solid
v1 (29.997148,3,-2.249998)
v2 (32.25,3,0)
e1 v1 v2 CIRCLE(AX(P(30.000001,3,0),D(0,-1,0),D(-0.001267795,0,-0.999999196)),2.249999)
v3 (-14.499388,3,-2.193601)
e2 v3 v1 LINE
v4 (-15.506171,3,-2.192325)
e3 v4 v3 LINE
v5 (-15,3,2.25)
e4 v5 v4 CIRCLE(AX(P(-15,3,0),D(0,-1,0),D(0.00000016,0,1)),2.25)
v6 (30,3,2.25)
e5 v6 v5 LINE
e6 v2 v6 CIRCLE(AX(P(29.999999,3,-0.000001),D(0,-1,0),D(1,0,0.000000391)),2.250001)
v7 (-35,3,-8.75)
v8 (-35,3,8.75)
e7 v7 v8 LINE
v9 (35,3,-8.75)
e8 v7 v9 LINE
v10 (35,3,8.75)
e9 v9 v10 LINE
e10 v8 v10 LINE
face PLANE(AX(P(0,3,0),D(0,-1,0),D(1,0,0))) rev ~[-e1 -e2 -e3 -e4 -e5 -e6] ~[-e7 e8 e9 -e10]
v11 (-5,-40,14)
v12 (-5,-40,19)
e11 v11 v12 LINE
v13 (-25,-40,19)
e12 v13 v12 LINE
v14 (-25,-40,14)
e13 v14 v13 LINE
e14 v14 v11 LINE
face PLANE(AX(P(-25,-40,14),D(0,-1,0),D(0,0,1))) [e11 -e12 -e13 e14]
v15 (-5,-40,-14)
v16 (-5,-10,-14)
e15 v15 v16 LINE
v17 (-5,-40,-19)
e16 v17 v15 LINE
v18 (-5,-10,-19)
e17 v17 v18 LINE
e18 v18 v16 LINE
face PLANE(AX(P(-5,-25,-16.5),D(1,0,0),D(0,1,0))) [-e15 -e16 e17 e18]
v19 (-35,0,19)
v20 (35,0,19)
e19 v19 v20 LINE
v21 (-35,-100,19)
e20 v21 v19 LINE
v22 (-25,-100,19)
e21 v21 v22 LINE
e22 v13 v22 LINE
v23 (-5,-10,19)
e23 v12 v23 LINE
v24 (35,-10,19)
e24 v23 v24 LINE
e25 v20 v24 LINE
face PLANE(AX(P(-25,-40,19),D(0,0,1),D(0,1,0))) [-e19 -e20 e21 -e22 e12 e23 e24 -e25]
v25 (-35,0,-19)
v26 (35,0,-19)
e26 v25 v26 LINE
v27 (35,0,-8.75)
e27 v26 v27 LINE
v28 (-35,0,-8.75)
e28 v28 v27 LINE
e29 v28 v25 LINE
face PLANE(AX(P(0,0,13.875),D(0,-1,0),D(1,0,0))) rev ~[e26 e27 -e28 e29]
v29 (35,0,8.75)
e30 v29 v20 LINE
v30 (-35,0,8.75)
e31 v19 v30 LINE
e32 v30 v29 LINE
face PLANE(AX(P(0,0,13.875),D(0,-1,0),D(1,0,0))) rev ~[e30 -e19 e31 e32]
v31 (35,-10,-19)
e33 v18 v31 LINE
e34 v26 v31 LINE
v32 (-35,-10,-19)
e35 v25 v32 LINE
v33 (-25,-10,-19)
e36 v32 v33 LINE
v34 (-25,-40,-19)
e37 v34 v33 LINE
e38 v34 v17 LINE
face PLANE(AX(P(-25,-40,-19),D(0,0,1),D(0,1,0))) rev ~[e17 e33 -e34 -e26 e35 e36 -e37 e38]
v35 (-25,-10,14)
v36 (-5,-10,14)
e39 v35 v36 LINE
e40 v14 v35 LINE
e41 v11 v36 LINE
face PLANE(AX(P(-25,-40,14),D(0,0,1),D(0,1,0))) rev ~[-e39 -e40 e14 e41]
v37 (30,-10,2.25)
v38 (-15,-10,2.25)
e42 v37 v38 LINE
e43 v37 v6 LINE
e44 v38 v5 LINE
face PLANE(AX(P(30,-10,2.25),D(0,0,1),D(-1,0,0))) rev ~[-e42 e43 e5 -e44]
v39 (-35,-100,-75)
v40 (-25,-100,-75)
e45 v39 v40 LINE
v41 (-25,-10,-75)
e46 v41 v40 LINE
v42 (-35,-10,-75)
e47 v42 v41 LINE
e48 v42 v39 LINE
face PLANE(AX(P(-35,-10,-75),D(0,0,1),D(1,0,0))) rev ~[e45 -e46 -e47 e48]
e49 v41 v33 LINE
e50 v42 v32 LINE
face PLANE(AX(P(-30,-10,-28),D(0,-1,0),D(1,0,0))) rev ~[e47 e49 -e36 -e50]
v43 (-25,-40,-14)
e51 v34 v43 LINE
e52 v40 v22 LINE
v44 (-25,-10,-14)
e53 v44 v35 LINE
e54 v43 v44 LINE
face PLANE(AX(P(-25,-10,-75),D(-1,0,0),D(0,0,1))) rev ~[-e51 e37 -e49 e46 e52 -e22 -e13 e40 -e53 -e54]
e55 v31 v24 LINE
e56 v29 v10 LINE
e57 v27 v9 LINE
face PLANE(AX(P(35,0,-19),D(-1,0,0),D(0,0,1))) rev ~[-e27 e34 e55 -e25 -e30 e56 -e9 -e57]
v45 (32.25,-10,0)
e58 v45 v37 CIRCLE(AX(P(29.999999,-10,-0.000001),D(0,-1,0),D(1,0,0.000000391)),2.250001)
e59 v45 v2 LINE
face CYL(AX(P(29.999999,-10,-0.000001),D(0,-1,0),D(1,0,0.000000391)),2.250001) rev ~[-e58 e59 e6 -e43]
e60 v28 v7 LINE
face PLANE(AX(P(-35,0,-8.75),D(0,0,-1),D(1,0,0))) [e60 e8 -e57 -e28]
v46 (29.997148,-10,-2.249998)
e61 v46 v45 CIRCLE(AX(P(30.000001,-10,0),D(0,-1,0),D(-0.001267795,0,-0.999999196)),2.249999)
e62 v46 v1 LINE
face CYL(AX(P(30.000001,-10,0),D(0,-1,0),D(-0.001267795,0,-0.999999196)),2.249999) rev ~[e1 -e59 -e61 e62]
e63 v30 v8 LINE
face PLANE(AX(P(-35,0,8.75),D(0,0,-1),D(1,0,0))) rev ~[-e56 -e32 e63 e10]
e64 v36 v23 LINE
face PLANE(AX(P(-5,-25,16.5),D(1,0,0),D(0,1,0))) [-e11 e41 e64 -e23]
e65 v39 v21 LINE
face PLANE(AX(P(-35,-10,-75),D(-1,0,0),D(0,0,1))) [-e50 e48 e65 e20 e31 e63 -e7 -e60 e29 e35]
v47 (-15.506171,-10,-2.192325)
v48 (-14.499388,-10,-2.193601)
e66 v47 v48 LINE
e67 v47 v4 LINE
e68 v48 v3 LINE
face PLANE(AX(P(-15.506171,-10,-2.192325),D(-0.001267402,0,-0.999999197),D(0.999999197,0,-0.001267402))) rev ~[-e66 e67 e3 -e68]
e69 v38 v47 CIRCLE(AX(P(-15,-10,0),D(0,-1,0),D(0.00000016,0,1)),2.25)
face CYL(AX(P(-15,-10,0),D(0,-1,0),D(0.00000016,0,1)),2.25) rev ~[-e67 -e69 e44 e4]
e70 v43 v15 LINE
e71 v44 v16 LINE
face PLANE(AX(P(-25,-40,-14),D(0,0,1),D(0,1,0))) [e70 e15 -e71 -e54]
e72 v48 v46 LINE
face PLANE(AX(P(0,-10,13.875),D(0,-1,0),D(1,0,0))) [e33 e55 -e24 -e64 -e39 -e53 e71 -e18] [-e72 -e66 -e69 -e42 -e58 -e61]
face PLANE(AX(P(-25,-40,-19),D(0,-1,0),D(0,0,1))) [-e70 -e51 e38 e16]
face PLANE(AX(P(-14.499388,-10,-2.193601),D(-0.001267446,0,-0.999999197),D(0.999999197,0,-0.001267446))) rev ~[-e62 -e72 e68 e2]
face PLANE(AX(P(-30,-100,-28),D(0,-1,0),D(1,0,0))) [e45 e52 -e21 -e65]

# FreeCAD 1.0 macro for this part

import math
import FreeCAD as App
import Part
import Sketcher


def add_polygon(sketch, points):
    """Adds a closed chain of lines whose ends are joined by coincident constraints."""
    first, n = sketch.GeometryCount, len(points)
    for a, b in zip(points, points[1:] + points[:1]):
        sketch.addGeometry(Part.LineSegment(App.Vector(*a, 0), App.Vector(*b, 0)), False)
    for i in range(n):
        sketch.addConstraint(Sketcher.Constraint("Coincident", first + i, 2, first + (i + 1) % n, 1))

doc = App.newDocument("Part")
body = doc.addObject("PartDesign::Body", "Body")

sketch1 = doc.addObject("Sketcher::SketchObject", "Sketch")
body.addObject(sketch1)
sketch1.AttachmentSupport = (doc.XZ_Plane, [""])
sketch1.MapMode = "FlatFace"
add_polygon(sketch1, [(-35, 19), (-35, -19), (35, -19), (35, 19)])
sketch1.addConstraint([
    Sketcher.Constraint("Vertical", 0),
    Sketcher.Constraint("Horizontal", 1),
    Sketcher.Constraint("Vertical", 2),
    Sketcher.Constraint("Horizontal", 3),
    Sketcher.Constraint("Symmetric", 0, 2, 2, 2, -1, 1),
    Sketcher.Constraint("DistanceX", 1, 1, 1, 2, 70.0),
    Sketcher.Constraint("DistanceY", 0, 2, 0, 1, 38.0),
])
pad1 = doc.addObject("PartDesign::Pad", "Pad")
body.addObject(pad1)
pad1.Profile = sketch1
pad1.Length = 10

sketch2 = doc.addObject("Sketcher::SketchObject", "Sketch001")
body.addObject(sketch2)
sketch2.AttachmentSupport = (doc.XZ_Plane, [""])
sketch2.MapMode = "FlatFace"
add_polygon(sketch2, [(-35, 8.75), (-35, -8.75), (35, -8.75), (35, 8.75)])
sketch2.addConstraint([
    Sketcher.Constraint("Vertical", 0),
    Sketcher.Constraint("Horizontal", 1),
    Sketcher.Constraint("Vertical", 2),
    Sketcher.Constraint("Horizontal", 3),
    Sketcher.Constraint("Symmetric", 0, 2, 2, 2, -1, 1),
    Sketcher.Constraint("DistanceX", 1, 1, 1, 2, 70.0),
    Sketcher.Constraint("DistanceY", 0, 2, 0, 1, 17.5),
])
pad2 = doc.addObject("PartDesign::Pad", "Pad001")
body.addObject(pad2)
pad2.Profile = sketch2
pad2.Length = 3
pad2.Reversed = True

sketch3 = doc.addObject("Sketcher::SketchObject", "Sketch002")
body.addObject(sketch3)
sketch3.AttachmentSupport = (doc.XZ_Plane, [""])
sketch3.MapMode = "FlatFace"
sketch3.AttachmentOffset = App.Placement(App.Vector(0, 0, 10), App.Rotation())
sketch3.addGeometry([
    Part.ArcOfCircle(Part.Circle(App.Vector(-15, 0, 0), App.Vector(0, 0, 1), 2.25), math.radians(89.999991), math.radians(256.999194)),
    Part.LineSegment(App.Vector(-15.506171, -2.192325, 0), App.Vector(-14.499388, -2.193601, 0)),
    Part.LineSegment(App.Vector(-14.499388, -2.193601, 0), App.Vector(29.997148, -2.249998, 0)),
    Part.ArcOfCircle(Part.Circle(App.Vector(30.000001, 0, 0), App.Vector(0, 0, 1), 2.249999), math.radians(-90.072639), math.radians(0.000009)),
    Part.ArcOfCircle(Part.Circle(App.Vector(29.999999, -0.000001, 0), App.Vector(0, 0, 1), 2.250001), math.radians(0.000022), math.radians(89.999978)),
    Part.LineSegment(App.Vector(30, 2.25, 0), App.Vector(-15, 2.25, 0)),
], False)
sketch3.addConstraint([
    Sketcher.Constraint("Coincident", 0, 2, 1, 1),
    Sketcher.Constraint("Coincident", 1, 2, 2, 1),
    Sketcher.Constraint("Tangent", 2, 2, 3, 1),
    Sketcher.Constraint("Tangent", 3, 2, 4, 1),
    Sketcher.Constraint("Tangent", 4, 2, 5, 1),
    Sketcher.Constraint("Tangent", 5, 2, 0, 1),
    Sketcher.Constraint("Horizontal", 5),
    Sketcher.Constraint("Equal", 0, 3),
    Sketcher.Constraint("Equal", 3, 4),
    Sketcher.Constraint("PointOnObject", 0, 3, -1),
    Sketcher.Constraint("PointOnObject", 3, 2, -1),
    Sketcher.Constraint("Parallel", 1, 2),
    Sketcher.Constraint("DistanceX", 5, 2, 5, 1, 45.0),
    Sketcher.Constraint("Radius", 0, 2.25),
    Sketcher.Constraint("DistanceX", 0, 3, -1, 1, 15.0),
    Sketcher.Constraint("DistanceY", 1, 2, -1, 1, 2.193601),
    Sketcher.Constraint("Distance", 2, 44.496572),
])
pocket1 = doc.addObject("PartDesign::Pocket", "Pocket")
body.addObject(pocket1)
pocket1.Profile = sketch3
pocket1.Length = 25

sketch4 = doc.addObject("Sketcher::SketchObject", "Sketch003")
body.addObject(sketch4)
sketch4.AttachmentSupport = (doc.XZ_Plane, [""])
sketch4.MapMode = "FlatFace"
sketch4.AttachmentOffset = App.Placement(App.Vector(0, 0, 10), App.Rotation())
add_polygon(sketch4, [(-35, 19), (-35, -75), (-25, -75), (-25, 19)])
sketch4.addConstraint([
    Sketcher.Constraint("Vertical", 0),
    Sketcher.Constraint("Horizontal", 1),
    Sketcher.Constraint("Vertical", 2),
    Sketcher.Constraint("Horizontal", 3),
    Sketcher.Constraint("DistanceX", 1, 1, 1, 2, 10.0),
    Sketcher.Constraint("DistanceY", 0, 2, 0, 1, 94.0),
    Sketcher.Constraint("DistanceX", 0, 2, -1, 1, 35.0),
    Sketcher.Constraint("DistanceY", 0, 2, -1, 1, 75.0),
])
pad3 = doc.addObject("PartDesign::Pad", "Pad002")
body.addObject(pad3)
pad3.Profile = sketch4
pad3.Length = 90

sketch5 = doc.addObject("Sketcher::SketchObject", "Sketch004")
body.addObject(sketch5)
sketch5.AttachmentSupport = (doc.YZ_Plane, [""])
sketch5.MapMode = "FlatFace"
sketch5.AttachmentOffset = App.Placement(App.Vector(0, 0, -25), App.Rotation())
add_polygon(sketch5, [(-40, 19), (-40, 14), (-10, 14), (-10, 19)])
add_polygon(sketch5, [(-40, -14), (-40, -19), (-10, -19), (-10, -14)])
sketch5.addConstraint([
    Sketcher.Constraint("Vertical", 0),
    Sketcher.Constraint("Horizontal", 1),
    Sketcher.Constraint("Vertical", 2),
    Sketcher.Constraint("Horizontal", 3),
    Sketcher.Constraint("Vertical", 4),
    Sketcher.Constraint("Horizontal", 5),
    Sketcher.Constraint("Vertical", 6),
    Sketcher.Constraint("Horizontal", 7),
    Sketcher.Constraint("Symmetric", 3, 2, 4, 2, -1),
    Sketcher.Constraint("Symmetric", 1, 2, 6, 2, -1),
    Sketcher.Constraint("DistanceX", 1, 1, 1, 2, 30.0),
    Sketcher.Constraint("DistanceY", 0, 2, 0, 1, 5.0),
    Sketcher.Constraint("DistanceX", 0, 2, -1, 1, 40.0),
    Sketcher.Constraint("DistanceY", -1, 1, 0, 2, 14.0),
])
pad4 = doc.addObject("PartDesign::Pad", "Pad003")
body.addObject(pad4)
pad4.Profile = sketch5
pad4.Length = 20

doc.recompute()
